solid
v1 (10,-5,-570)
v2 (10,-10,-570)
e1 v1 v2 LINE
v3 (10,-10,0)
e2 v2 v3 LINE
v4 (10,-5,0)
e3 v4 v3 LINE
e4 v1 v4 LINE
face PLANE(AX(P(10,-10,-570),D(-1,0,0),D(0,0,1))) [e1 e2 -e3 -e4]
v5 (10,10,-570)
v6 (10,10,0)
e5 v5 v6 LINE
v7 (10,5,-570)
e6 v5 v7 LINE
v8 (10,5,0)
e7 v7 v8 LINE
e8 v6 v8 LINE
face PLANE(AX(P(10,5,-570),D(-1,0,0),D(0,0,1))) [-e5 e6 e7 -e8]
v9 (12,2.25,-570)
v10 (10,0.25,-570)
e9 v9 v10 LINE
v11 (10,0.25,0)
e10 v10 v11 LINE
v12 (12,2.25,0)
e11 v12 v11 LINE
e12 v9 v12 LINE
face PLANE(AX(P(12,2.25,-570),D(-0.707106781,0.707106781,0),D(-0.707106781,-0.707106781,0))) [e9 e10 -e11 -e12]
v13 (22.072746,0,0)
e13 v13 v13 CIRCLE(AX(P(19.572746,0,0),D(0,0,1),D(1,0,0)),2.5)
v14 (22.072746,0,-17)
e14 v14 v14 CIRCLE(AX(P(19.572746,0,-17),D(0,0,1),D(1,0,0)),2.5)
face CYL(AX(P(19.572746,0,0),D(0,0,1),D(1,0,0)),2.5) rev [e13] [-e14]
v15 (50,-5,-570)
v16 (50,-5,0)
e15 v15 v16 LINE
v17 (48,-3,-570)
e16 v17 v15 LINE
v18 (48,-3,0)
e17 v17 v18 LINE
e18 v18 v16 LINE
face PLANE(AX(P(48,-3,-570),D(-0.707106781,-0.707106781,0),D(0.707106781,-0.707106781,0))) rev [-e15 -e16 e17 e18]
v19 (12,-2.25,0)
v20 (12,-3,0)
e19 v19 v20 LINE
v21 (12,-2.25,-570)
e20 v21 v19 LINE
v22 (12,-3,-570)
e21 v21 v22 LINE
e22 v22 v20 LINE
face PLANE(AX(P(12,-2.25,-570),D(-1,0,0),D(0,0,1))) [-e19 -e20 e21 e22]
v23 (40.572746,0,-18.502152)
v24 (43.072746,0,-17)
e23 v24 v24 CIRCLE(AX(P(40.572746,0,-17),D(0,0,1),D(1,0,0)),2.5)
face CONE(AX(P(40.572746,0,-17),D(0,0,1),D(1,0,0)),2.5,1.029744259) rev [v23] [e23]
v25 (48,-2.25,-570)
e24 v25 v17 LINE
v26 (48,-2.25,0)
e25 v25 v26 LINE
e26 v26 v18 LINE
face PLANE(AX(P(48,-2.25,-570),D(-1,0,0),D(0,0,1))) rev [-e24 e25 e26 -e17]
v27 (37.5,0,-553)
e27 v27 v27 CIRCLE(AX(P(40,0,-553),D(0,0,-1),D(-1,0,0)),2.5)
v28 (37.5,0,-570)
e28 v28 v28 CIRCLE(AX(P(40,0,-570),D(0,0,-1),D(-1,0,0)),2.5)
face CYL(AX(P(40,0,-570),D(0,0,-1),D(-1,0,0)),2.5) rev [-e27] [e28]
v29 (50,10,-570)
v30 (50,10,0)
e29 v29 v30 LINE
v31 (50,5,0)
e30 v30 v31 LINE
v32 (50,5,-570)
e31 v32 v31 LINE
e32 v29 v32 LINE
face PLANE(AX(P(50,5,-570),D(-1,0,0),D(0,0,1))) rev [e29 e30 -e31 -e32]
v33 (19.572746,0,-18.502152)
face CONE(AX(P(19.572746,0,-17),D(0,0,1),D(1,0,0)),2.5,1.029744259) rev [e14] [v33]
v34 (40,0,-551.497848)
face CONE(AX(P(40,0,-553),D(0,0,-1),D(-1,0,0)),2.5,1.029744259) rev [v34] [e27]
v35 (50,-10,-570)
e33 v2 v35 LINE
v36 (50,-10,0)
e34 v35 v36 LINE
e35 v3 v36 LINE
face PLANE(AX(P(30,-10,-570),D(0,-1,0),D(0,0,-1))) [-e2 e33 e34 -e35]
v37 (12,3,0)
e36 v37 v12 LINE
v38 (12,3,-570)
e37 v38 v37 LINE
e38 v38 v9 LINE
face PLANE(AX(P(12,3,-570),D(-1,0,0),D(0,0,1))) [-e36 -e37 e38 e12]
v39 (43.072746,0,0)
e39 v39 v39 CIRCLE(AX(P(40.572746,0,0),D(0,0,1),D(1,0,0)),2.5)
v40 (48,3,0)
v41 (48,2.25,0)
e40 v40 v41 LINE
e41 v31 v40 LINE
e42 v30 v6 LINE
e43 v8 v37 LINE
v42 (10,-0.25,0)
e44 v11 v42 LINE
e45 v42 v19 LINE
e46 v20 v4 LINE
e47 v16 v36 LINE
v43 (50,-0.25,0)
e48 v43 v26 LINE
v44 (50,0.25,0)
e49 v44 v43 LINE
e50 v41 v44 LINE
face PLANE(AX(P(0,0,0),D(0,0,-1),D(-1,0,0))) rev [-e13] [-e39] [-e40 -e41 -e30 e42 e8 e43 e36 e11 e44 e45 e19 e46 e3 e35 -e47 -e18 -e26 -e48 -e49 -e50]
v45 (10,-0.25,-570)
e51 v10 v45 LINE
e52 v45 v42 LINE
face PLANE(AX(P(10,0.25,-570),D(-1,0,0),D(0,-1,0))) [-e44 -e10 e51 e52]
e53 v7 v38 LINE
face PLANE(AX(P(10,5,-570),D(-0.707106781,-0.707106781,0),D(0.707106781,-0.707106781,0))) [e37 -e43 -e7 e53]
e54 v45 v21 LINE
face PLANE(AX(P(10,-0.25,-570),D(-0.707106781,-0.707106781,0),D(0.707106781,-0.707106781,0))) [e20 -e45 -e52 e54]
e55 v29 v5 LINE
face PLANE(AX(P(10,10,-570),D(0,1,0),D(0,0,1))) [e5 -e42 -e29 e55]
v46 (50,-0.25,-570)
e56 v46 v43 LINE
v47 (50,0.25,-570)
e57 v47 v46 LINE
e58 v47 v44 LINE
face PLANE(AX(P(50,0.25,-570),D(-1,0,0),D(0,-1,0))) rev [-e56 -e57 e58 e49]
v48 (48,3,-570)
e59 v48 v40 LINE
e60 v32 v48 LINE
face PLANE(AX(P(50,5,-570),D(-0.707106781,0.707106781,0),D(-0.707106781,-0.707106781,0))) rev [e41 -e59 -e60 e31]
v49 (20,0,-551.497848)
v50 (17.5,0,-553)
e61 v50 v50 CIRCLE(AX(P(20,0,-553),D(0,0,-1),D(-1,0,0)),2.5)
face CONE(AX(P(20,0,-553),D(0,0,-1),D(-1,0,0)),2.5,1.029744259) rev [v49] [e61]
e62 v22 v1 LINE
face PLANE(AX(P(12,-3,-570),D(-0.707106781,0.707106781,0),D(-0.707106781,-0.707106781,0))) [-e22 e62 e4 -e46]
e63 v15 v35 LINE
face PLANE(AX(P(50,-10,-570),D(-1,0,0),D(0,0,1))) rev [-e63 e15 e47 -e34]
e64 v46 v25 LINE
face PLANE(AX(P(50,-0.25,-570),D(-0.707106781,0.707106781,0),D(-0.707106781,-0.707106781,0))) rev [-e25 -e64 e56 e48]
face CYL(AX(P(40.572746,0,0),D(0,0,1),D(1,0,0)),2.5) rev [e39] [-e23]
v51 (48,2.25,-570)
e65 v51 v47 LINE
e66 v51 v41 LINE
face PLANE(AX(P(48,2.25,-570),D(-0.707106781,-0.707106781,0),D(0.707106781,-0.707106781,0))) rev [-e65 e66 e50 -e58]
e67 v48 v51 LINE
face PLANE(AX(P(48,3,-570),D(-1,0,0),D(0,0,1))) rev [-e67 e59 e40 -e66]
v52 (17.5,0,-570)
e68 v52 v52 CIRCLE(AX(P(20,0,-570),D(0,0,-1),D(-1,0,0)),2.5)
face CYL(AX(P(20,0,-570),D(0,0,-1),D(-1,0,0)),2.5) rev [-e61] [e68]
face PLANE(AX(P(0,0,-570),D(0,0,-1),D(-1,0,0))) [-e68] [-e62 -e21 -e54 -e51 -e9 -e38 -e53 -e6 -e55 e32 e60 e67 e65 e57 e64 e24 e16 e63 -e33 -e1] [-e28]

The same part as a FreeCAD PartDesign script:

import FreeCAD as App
import Part
import Sketcher
from FreeCAD import Vector
Q = App.Units.Quantity

doc = App.newDocument("Part")
body = doc.addObject("PartDesign::Body", "Body")

# Sketch on XY plane
sketch1 = body.newObject("Sketcher::SketchObject", "Sketch")
sketch1.AttachmentSupport = (doc.getObject("XY_Plane"), [""])
sketch1.MapMode = "FlatFace"
sketch1.addGeometry([
    Part.LineSegment(Vector(10, 0.2, 0), Vector(10, -0.2, 0)),  # 0
    Part.LineSegment(Vector(10, -0.2, 0), Vector(12, -2.2, 0)),  # 1
    Part.LineSegment(Vector(12, -2.2, 0), Vector(12, -3, 0)),  # 2
    Part.LineSegment(Vector(12, -3, 0), Vector(10, -5, 0)),  # 3
    Part.LineSegment(Vector(10, -5, 0), Vector(10, -10, 0)),  # 4
    Part.LineSegment(Vector(10, -10, 0), Vector(30, -10, 0)),  # 5
    Part.LineSegment(Vector(30, -10, 0), Vector(30, 10, 0)),  # 6
    Part.LineSegment(Vector(30, 10, 0), Vector(10, 10, 0)),  # 7
    Part.LineSegment(Vector(10, 10, 0), Vector(10, 5, 0)),  # 8
    Part.LineSegment(Vector(10, 5, 0), Vector(12, 3, 0)),  # 9
    Part.LineSegment(Vector(12, 3, 0), Vector(12, 2.2, 0)),  # 10
    Part.LineSegment(Vector(12, 2.2, 0), Vector(10, 0.2, 0)),  # 11
], False)
sketch1.addConstraint([
    Sketcher.Constraint("Coincident", 0, 2, 1, 1),
    Sketcher.Constraint("Coincident", 1, 2, 2, 1),
    Sketcher.Constraint("Coincident", 2, 2, 3, 1),
    Sketcher.Constraint("Coincident", 3, 2, 4, 1),
    Sketcher.Constraint("Coincident", 4, 2, 5, 1),
    Sketcher.Constraint("Coincident", 5, 2, 6, 1),
    Sketcher.Constraint("Coincident", 6, 2, 7, 1),
    Sketcher.Constraint("Coincident", 7, 2, 8, 1),
    Sketcher.Constraint("Coincident", 8, 2, 9, 1),
    Sketcher.Constraint("Coincident", 9, 2, 10, 1),
    Sketcher.Constraint("Coincident", 10, 2, 11, 1),
    Sketcher.Constraint("Coincident", 11, 2, 0, 1),
    Sketcher.Constraint("Vertical", 0),
    Sketcher.Constraint("Vertical", 2),
    Sketcher.Constraint("Vertical", 4),
    Sketcher.Constraint("Horizontal", 5),
    Sketcher.Constraint("Vertical", 6),
    Sketcher.Constraint("Horizontal", 7),
    Sketcher.Constraint("Vertical", 8),
    Sketcher.Constraint("Vertical", 10),
    Sketcher.Constraint("Symmetric", 4, 2, 7, 2, -1),
    Sketcher.Constraint("Symmetric", 2, 2, 9, 2, -1),
    Sketcher.Constraint("Perpendicular", 1, 3),
    Sketcher.Constraint("Perpendicular", 3, 9),
    Sketcher.Constraint("Perpendicular", 9, 11),
    Sketcher.Constraint("Vertical", 0, 2, 3, 2),
    Sketcher.Constraint("Equal", 7, 6),
    Sketcher.Constraint("Equal", 4, 8),
    Sketcher.Constraint("Equal", 2, 10),
    Sketcher.Constraint("DistanceX", 5, 1, 5, 2, Q("20 mm")),
    Sketcher.Constraint("DistanceY", 4, 2, 4, 1, Q("5 mm")),
    Sketcher.Constraint("DistanceY", 0, 2, 0, 1, Q("0.5 mm")),
    Sketcher.Constraint("DistanceX", -1, 1, 0, 2, Q("10 mm")),
    Sketcher.Constraint("DistanceX", -1, 1, 1, 2, Q("12 mm")),
])
pad1 = body.newObject("PartDesign::Pad", "Pad")
pad1.Profile = sketch1
pad1.Length = 570
pad1.Reversed = True
doc.recompute()

datumplane = body.newObject("PartDesign::Plane", "DatumPlane")
datumplane.AttachmentSupport = (doc.getObject("YZ_Plane"), [""])
datumplane.MapMode = "FlatFace"
datumplane.AttachmentOffset = App.Placement(Vector(0, 0, 30), App.Rotation())
mirrored = body.newObject("PartDesign::Mirrored", "Mirrored")
mirrored.Originals = [pad1]
mirrored.MirrorPlane = (datumplane, [""])
body.Tip = mirrored

# Sketch on XY plane
sketch2 = body.newObject("Sketcher::SketchObject", "Sketch001")
sketch2.AttachmentSupport = (doc.getObject("XY_Plane"), [""])
sketch2.MapMode = "FlatFace"
sketch2.AttachmentOffset = App.Placement(Vector(0, 0, -570), App.Rotation())
sketch2.addGeometry([
    Part.Circle(Vector(40, 0, 0), Vector(0, 0, 1), 2.5),
    Part.Circle(Vector(20, 0, 0), Vector(0, 0, 1), 2.5),
], False)
sketch2.addConstraint([
    Sketcher.Constraint("Equal", 0, 1),
    Sketcher.Constraint("PointOnObject", 0, 3, -1),
    Sketcher.Constraint("PointOnObject", 1, 3, -1),
    Sketcher.Constraint("Diameter", 0, Q("5 mm")),
    Sketcher.Constraint("DistanceX", -1, 1, 0, 3, Q("40 mm")),
    Sketcher.Constraint("DistanceX", -1, 1, 1, 3, Q("20 mm")),
])
doc.recompute()
hole = body.newObject("PartDesign::Hole", "Hole")
hole.Profile = sketch2
hole.ThreadType = "None"
hole.Diameter = 5
hole.DepthType = "Dimension"
hole.Depth = 17
hole.DrillPoint = "Angled"
hole.DrillPointAngle = 118
hole.Reversed = True

# Sketch on XY plane
sketch3 = body.newObject("Sketcher::SketchObject", "Sketch002")
sketch3.AttachmentSupport = (doc.getObject("XY_Plane"), [""])
sketch3.MapMode = "FlatFace"
sketch3.addGeometry([
    Part.Circle(Vector(19.6, 0, 0), Vector(0, 0, 1), 2.5),
    Part.Circle(Vector(40.6, 0, 0), Vector(0, 0, 1), 2.5),
], False)
sketch3.addConstraint([
    Sketcher.Constraint("Equal", 0, 1),
    Sketcher.Constraint("PointOnObject", 0, 3, -1),
    Sketcher.Constraint("PointOnObject", 1, 3, -1),
    Sketcher.Constraint("Diameter", 0, Q("5 mm")),
    Sketcher.Constraint("DistanceX", 0, 3, 1, 3, Q("21 mm")),
    Sketcher.Constraint("DistanceX", -1, 1, 0, 3, Q("19.572746 mm")),
])
doc.recompute()
hole2 = body.newObject("PartDesign::Hole", "Hole001")
hole2.Profile = sketch3
hole2.ThreadType = "None"
hole2.Diameter = 5
hole2.DepthType = "Dimension"
hole2.Depth = 17
hole2.DrillPoint = "Angled"
hole2.DrillPointAngle = 118

doc.recompute()
